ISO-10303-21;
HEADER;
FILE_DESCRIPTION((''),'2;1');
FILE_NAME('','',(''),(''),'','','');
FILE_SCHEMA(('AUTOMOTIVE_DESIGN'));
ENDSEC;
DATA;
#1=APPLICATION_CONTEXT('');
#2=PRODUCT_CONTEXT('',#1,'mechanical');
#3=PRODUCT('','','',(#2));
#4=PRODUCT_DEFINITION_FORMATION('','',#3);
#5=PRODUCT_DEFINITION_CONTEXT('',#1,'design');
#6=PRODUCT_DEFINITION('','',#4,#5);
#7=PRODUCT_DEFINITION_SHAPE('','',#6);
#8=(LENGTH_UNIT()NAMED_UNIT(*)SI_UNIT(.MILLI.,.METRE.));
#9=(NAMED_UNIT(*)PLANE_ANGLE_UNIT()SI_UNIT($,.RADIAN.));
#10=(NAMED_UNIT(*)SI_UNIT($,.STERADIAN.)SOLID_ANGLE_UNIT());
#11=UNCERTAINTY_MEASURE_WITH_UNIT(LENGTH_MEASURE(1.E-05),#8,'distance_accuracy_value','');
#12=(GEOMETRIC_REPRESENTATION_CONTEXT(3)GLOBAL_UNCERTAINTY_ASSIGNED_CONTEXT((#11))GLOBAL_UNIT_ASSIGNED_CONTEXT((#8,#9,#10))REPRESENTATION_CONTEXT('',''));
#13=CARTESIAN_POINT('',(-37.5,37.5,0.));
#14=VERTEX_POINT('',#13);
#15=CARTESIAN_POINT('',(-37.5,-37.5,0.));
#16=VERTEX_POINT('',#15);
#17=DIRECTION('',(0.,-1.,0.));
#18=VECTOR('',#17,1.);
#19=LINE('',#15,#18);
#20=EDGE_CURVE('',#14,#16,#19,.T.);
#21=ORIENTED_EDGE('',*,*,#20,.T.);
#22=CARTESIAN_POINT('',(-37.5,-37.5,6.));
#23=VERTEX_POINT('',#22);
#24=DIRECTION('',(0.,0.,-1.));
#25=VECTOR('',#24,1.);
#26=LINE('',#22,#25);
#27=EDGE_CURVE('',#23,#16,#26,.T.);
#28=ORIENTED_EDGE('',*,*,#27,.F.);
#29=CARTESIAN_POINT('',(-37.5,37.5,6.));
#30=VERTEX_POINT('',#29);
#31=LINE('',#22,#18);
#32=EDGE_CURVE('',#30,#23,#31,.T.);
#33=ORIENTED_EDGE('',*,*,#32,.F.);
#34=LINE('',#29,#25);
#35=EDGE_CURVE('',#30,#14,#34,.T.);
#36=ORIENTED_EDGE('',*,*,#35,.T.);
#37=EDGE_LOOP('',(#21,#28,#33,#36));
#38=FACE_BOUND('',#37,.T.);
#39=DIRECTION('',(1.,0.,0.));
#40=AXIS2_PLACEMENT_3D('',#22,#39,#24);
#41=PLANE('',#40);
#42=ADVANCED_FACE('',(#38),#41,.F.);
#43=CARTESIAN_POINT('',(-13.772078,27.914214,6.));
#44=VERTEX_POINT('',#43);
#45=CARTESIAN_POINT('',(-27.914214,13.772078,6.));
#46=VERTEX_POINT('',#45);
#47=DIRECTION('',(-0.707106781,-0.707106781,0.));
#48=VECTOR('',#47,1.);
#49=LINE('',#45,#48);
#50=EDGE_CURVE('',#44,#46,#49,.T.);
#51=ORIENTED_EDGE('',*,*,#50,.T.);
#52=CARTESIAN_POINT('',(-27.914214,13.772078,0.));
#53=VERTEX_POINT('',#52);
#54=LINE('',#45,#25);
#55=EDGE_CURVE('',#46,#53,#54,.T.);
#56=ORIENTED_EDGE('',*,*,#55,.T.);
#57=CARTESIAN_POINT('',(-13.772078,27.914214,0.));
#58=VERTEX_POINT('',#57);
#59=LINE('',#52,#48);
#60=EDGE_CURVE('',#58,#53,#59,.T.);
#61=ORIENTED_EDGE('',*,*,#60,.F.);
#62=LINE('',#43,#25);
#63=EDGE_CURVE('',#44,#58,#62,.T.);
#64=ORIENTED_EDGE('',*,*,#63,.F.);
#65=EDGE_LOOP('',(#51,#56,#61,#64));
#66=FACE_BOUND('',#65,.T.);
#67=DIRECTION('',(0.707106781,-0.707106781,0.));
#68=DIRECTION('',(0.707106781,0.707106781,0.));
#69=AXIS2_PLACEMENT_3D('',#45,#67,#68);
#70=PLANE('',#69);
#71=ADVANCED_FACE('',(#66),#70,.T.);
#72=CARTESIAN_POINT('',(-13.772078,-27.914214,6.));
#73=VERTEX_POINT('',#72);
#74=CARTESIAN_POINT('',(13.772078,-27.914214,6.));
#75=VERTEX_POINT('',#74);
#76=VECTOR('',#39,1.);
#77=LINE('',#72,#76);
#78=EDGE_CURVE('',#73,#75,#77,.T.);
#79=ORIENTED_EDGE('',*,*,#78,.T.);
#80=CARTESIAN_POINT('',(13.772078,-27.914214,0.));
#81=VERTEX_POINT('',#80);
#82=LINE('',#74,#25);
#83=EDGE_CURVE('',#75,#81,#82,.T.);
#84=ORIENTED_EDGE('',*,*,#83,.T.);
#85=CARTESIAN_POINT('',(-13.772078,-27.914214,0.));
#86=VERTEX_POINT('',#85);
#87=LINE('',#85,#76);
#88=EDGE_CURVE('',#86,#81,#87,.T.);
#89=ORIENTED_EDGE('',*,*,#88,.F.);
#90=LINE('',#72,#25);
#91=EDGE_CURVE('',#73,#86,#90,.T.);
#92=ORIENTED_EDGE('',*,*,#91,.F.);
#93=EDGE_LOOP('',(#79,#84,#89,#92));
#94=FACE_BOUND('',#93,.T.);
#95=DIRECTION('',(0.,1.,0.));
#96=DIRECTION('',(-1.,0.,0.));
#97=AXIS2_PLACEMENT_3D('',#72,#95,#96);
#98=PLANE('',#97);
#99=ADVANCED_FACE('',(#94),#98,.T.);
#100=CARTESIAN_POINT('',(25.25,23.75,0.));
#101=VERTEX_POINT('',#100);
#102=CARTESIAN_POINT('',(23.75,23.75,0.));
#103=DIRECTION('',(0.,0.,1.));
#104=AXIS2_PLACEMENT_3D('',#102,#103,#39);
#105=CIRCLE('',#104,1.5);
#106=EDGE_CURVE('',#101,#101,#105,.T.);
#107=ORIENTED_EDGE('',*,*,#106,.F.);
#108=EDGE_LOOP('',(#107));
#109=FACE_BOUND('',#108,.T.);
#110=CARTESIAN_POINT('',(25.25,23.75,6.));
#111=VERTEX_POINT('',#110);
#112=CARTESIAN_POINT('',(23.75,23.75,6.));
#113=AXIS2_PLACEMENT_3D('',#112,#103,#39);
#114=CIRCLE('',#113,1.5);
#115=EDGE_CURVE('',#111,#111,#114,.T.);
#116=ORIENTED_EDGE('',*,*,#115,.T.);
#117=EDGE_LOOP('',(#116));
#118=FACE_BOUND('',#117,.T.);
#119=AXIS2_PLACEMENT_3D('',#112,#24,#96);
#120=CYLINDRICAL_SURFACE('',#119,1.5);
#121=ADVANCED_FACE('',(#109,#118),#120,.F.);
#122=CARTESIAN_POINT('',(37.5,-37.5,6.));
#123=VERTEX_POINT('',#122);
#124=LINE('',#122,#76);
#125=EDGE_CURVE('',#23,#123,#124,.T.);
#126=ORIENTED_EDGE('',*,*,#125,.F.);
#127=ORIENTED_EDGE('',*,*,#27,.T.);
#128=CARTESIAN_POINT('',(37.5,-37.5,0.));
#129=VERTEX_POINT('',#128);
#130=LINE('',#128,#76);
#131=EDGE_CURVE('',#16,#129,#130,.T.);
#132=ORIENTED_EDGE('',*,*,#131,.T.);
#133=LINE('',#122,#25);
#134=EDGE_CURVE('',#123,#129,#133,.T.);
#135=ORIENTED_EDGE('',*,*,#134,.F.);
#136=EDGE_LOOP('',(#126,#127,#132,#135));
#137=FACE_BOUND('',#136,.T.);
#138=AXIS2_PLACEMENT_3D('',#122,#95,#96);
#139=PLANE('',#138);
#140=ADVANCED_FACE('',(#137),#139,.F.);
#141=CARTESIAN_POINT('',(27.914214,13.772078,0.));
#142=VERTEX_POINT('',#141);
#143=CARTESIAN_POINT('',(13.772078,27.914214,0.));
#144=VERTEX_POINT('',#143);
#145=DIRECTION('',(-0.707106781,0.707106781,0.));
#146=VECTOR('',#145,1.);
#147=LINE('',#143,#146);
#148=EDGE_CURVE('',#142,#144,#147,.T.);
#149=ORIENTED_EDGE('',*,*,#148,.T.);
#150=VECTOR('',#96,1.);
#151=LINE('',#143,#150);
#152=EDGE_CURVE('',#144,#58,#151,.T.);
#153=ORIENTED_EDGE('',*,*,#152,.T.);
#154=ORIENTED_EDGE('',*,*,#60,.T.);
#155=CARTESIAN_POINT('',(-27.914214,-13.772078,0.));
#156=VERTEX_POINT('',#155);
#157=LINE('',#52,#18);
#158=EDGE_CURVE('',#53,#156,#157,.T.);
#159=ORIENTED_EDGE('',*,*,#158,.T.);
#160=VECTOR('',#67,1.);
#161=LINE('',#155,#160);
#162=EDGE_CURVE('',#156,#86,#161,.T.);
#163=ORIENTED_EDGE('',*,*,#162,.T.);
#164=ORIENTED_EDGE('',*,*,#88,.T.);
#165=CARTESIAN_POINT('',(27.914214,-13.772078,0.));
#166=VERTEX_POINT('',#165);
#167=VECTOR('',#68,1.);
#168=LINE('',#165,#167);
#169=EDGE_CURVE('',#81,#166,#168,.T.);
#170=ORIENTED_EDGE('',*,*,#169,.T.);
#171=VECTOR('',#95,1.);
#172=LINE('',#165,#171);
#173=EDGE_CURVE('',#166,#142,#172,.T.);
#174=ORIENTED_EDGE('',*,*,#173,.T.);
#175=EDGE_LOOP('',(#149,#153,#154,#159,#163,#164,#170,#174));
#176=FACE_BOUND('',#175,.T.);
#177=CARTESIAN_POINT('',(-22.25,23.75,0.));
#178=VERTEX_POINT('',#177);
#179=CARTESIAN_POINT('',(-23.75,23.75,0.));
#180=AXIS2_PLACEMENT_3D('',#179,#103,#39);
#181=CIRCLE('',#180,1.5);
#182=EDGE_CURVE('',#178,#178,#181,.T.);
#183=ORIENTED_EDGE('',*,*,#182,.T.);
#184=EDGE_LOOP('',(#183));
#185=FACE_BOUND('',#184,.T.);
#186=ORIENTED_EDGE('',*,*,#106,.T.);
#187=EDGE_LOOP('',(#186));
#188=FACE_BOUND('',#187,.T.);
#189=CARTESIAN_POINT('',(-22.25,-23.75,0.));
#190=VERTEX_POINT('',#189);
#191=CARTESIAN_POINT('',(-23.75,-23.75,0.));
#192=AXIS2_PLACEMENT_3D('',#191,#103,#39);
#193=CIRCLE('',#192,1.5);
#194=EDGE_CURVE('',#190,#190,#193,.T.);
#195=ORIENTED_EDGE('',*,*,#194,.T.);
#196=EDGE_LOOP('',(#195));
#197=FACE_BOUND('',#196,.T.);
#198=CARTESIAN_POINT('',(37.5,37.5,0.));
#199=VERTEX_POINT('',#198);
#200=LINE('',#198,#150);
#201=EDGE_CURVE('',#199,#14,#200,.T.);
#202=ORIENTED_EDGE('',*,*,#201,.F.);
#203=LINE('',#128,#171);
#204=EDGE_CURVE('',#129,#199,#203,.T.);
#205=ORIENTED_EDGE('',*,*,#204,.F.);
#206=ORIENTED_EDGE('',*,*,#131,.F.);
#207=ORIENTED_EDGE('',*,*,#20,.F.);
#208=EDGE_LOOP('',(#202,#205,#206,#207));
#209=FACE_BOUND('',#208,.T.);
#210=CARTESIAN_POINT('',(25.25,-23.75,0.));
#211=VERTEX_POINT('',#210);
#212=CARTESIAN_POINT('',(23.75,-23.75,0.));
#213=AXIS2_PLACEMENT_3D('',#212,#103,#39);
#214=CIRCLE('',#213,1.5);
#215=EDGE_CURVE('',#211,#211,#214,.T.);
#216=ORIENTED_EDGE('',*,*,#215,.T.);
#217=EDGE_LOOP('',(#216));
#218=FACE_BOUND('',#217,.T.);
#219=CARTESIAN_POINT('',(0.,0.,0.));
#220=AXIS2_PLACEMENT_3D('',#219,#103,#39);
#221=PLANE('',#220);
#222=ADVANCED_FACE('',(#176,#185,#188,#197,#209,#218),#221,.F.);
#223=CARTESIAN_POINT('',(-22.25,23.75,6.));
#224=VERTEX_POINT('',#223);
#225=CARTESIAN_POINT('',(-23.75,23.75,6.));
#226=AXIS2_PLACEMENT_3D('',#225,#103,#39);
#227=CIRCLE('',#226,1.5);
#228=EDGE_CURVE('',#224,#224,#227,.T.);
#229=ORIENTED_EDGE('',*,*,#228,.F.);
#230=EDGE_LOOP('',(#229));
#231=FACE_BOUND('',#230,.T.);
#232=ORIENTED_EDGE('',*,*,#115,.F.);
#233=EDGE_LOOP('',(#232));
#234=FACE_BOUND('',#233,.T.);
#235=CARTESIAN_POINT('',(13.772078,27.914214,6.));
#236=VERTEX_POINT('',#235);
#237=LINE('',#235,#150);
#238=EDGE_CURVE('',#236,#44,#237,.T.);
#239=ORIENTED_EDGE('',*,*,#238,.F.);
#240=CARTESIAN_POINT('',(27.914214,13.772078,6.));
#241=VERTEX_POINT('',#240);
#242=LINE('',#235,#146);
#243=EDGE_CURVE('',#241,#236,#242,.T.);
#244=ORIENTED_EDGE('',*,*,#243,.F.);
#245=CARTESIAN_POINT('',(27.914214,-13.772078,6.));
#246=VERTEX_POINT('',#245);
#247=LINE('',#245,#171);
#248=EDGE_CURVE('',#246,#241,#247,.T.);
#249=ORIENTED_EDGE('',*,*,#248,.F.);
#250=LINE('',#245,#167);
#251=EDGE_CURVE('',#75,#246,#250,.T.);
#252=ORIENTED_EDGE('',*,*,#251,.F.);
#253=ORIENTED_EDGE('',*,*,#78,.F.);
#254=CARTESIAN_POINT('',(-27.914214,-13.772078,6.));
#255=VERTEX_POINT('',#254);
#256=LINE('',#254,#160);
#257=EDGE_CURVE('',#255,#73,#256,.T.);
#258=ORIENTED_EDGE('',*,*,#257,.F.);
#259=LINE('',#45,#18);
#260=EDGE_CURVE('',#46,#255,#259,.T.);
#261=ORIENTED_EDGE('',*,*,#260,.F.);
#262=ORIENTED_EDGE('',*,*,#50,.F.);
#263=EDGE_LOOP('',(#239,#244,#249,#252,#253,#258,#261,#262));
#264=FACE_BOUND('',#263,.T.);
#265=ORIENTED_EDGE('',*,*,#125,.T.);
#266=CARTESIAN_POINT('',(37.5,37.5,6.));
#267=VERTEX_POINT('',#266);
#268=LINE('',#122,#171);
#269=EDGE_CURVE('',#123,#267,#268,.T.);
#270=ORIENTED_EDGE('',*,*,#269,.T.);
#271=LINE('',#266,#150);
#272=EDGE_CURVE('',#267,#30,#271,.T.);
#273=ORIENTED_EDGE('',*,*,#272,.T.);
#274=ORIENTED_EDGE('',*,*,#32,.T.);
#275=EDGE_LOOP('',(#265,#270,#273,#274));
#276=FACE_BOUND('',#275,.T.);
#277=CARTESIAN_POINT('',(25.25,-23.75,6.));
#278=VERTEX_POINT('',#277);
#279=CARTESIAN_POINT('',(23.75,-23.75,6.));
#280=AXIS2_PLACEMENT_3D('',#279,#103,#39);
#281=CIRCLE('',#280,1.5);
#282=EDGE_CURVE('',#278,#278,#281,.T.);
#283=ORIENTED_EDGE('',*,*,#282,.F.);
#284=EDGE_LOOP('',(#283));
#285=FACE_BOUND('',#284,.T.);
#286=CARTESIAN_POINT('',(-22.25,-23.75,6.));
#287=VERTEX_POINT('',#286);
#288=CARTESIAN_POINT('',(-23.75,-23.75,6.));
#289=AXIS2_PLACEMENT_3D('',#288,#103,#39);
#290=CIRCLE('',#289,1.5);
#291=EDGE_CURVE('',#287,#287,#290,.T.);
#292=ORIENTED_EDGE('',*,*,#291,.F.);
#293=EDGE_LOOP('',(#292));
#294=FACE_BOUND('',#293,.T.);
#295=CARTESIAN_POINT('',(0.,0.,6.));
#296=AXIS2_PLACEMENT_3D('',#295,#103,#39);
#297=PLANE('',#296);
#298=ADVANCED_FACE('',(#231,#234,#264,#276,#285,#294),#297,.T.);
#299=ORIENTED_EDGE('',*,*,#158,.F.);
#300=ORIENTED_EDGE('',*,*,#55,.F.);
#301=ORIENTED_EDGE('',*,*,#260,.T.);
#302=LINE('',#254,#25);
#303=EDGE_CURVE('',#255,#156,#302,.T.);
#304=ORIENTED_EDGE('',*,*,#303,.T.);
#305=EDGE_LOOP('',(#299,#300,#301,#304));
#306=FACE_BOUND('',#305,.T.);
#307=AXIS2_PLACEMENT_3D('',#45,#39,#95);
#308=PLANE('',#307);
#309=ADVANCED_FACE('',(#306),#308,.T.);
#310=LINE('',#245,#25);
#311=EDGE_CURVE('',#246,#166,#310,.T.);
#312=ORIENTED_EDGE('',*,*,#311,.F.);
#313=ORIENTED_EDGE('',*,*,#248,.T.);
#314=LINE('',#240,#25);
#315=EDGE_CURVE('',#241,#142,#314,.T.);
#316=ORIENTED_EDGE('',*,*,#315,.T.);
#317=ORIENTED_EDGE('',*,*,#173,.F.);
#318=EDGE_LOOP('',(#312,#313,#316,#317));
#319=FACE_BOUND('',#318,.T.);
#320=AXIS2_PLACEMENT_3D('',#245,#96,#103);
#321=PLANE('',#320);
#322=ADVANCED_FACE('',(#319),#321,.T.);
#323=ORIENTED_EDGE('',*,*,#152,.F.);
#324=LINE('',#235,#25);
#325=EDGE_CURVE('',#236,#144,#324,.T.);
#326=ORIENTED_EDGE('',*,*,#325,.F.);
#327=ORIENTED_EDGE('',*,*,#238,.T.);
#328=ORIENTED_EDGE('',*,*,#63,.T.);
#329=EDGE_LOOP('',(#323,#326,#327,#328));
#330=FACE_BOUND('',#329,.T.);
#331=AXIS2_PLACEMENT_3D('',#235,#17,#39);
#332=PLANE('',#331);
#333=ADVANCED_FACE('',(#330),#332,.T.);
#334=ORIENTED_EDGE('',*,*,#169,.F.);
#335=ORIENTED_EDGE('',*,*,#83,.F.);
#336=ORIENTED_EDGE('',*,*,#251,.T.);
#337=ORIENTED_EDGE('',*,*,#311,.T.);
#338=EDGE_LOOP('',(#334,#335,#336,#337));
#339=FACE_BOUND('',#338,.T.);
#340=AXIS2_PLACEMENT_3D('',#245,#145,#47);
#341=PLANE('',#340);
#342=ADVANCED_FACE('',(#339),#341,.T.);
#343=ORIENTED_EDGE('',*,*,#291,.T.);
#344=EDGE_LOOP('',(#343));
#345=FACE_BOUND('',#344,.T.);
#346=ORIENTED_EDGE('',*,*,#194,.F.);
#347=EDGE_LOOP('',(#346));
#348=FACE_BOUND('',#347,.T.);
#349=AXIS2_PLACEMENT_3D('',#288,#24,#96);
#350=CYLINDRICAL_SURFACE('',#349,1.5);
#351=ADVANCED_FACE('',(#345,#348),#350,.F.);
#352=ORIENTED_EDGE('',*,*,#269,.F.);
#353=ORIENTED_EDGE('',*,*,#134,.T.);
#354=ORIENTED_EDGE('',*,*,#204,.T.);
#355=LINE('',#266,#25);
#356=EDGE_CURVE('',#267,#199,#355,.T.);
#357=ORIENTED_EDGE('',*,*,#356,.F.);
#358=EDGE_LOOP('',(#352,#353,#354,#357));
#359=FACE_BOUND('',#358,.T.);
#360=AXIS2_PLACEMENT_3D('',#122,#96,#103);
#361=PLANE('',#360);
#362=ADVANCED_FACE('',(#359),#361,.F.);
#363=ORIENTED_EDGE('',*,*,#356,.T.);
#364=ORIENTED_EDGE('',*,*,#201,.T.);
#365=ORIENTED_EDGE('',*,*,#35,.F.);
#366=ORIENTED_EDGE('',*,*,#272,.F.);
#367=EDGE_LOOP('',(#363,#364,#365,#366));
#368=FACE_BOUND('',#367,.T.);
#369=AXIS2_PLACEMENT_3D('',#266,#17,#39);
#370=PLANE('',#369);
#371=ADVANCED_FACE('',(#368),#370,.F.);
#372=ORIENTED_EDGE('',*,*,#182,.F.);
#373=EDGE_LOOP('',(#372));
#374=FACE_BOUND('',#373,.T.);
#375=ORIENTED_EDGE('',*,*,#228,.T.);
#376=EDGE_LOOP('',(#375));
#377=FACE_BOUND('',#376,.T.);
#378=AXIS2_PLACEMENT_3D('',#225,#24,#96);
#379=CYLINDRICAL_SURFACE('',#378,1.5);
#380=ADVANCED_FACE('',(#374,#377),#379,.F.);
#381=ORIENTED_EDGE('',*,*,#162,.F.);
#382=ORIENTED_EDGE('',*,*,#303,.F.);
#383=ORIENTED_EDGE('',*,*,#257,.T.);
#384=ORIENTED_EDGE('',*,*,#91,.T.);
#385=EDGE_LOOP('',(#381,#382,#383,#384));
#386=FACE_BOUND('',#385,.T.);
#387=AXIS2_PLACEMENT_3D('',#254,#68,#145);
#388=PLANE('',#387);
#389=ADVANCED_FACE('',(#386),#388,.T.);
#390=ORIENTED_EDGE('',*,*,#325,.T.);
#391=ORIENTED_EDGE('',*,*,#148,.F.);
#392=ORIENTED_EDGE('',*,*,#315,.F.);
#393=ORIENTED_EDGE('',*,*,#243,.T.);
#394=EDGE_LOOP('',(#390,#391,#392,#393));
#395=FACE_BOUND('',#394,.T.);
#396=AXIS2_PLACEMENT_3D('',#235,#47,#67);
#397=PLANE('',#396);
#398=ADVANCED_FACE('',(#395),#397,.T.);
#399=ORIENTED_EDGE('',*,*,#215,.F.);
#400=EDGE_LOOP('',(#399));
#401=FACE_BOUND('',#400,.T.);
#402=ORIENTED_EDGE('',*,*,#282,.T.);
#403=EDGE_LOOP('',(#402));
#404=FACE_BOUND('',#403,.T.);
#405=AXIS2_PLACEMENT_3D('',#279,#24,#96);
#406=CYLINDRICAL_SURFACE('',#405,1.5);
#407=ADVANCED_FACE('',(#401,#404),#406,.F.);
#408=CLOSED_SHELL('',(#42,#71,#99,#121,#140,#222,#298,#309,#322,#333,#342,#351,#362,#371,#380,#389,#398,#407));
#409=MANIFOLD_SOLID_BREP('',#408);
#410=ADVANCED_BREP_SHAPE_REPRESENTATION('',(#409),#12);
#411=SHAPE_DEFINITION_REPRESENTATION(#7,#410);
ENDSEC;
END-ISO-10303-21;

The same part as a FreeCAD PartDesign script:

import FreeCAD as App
import Part
import Sketcher

V = App.Vector

doc = App.newDocument("Part")
body = doc.addObject("PartDesign::Body", "Body")

sketch1 = doc.addObject("Sketcher::SketchObject", "Sketch")
body.addObject(sketch1)
sketch1.AttachmentSupport = (doc.XY_Plane, [""])
sketch1.MapMode = "FlatFace"
sketch1.addGeometry(Part.LineSegment(V(-37.5, 37.5, 0), V(-37.5, -37.5, 0)), False)
sketch1.addGeometry(Part.LineSegment(V(-37.5, -37.5, 0), V(37.5, -37.5, 0)), False)
sketch1.addGeometry(Part.LineSegment(V(37.5, -37.5, 0), V(37.5, 37.5, 0)), False)
sketch1.addGeometry(Part.LineSegment(V(37.5, 37.5, 0), V(-37.5, 37.5, 0)), False)
sketch1.addGeometry(Part.Circle(V(-23.75, -23.75, 0), V(0, 0, 1), 1.5), False)
sketch1.addGeometry(Part.Circle(V(23.75, -23.75, 0), V(0, 0, 1), 1.5), False)
sketch1.addGeometry(Part.Circle(V(-23.75, 23.75, 0), V(0, 0, 1), 1.5), False)
sketch1.addGeometry(Part.LineSegment(V(-27.914214, -13.772078, 0), V(-27.914214, 13.772078, 0)), False)
sketch1.addGeometry(Part.LineSegment(V(-27.914214, 13.772078, 0), V(-13.772078, 27.914214, 0)), False)
sketch1.addGeometry(Part.LineSegment(V(-13.772078, 27.914214, 0), V(13.772078, 27.914214, 0)), False)
sketch1.addGeometry(Part.LineSegment(V(13.772078, 27.914214, 0), V(27.914214, 13.772078, 0)), False)
sketch1.addGeometry(Part.LineSegment(V(27.914214, 13.772078, 0), V(27.914214, -13.772078, 0)), False)
sketch1.addGeometry(Part.LineSegment(V(27.914214, -13.772078, 0), V(13.772078, -27.914214, 0)), False)
sketch1.addGeometry(Part.LineSegment(V(13.772078, -27.914214, 0), V(-13.772078, -27.914214, 0)), False)
sketch1.addGeometry(Part.LineSegment(V(-13.772078, -27.914214, 0), V(-27.914214, -13.772078, 0)), False)
sketch1.addGeometry(Part.Circle(V(23.75, 23.75, 0), V(0, 0, 1), 1.5), False)
sketch1.addConstraint(Sketcher.Constraint("Coincident", 0, 2, 1, 1))
sketch1.addConstraint(Sketcher.Constraint("Coincident", 1, 2, 2, 1))
sketch1.addConstraint(Sketcher.Constraint("Coincident", 2, 2, 3, 1))
sketch1.addConstraint(Sketcher.Constraint("Coincident", 3, 2, 0, 1))
sketch1.addConstraint(Sketcher.Constraint("Coincident", 7, 2, 8, 1))
sketch1.addConstraint(Sketcher.Constraint("Coincident", 8, 2, 9, 1))
sketch1.addConstraint(Sketcher.Constraint("Coincident", 9, 2, 10, 1))
sketch1.addConstraint(Sketcher.Constraint("Coincident", 10, 2, 11, 1))
sketch1.addConstraint(Sketcher.Constraint("Coincident", 11, 2, 12, 1))
sketch1.addConstraint(Sketcher.Constraint("Coincident", 12, 2, 13, 1))
sketch1.addConstraint(Sketcher.Constraint("Coincident", 13, 2, 14, 1))
sketch1.addConstraint(Sketcher.Constraint("Coincident", 14, 2, 7, 1))
sketch1.addConstraint(Sketcher.Constraint("Vertical", 0))
sketch1.addConstraint(Sketcher.Constraint("Horizontal", 1))
sketch1.addConstraint(Sketcher.Constraint("Vertical", 2))
sketch1.addConstraint(Sketcher.Constraint("Horizontal", 3))
sketch1.addConstraint(Sketcher.Constraint("Vertical", 7))
sketch1.addConstraint(Sketcher.Constraint("Horizontal", 9))
sketch1.addConstraint(Sketcher.Constraint("Vertical", 11))
sketch1.addConstraint(Sketcher.Constraint("Horizontal", 13))
sketch1.addConstraint(Sketcher.Constraint("Equal", 4, 5))
sketch1.addConstraint(Sketcher.Constraint("Equal", 5, 6))
sketch1.addConstraint(Sketcher.Constraint("Equal", 6, 15))
sketch1.addConstraint(Sketcher.Constraint("Symmetric", 5, 3, 6, 3, -1, 1))
sketch1.addConstraint(Sketcher.Constraint("Symmetric", 4, 3, 15, 3, -1, 1))
sketch1.addConstraint(Sketcher.Constraint("Symmetric", 0, 2, 2, 2, -1, 1))
sketch1.addConstraint(Sketcher.Constraint("Symmetric", 7, 2, 11, 2, -1, 1))
sketch1.addConstraint(Sketcher.Constraint("Symmetric", 8, 2, 12, 2, -1, 1))
sketch1.addConstraint(Sketcher.Constraint("Symmetric", 4, 3, 5, 3, -2))
sketch1.addConstraint(Sketcher.Constraint("Perpendicular", 8, 10))
sketch1.addConstraint(Sketcher.Constraint("Perpendicular", 12, 14))
sketch1.addConstraint(Sketcher.Constraint("Horizontal", 7, 2, 10, 2))
sketch1.addConstraint(Sketcher.Constraint("Horizontal", 11, 2, 14, 2))
sketch1.addConstraint(Sketcher.Constraint("Vertical", 9, 2, 12, 2))
sketch1.addConstraint(Sketcher.Constraint("Equal", 3, 0))
sketch1.addConstraint(Sketcher.Constraint("Equal", 13, 7))
sketch1.addConstraint(Sketcher.Constraint("Diameter", 4, 3.0))
sketch1.addConstraint(Sketcher.Constraint("DistanceX", 1, 1, 1, 2, 75.0))
sketch1.addConstraint(Sketcher.Constraint("Distance", 8, 20.0))
sketch1.addConstraint(Sketcher.Constraint("DistanceX", 4, 3, 5, 3, 47.5))
sketch1.addConstraint(Sketcher.Constraint("DistanceY", 4, 3, 6, 3, 47.5))
sketch1.addConstraint(Sketcher.Constraint("DistanceX", 9, 1, 9, 2, 27.544156))
pad1 = doc.addObject("PartDesign::Pad", "Pad")
body.addObject(pad1)
pad1.Profile = sketch1
pad1.Length = 6

doc.recompute()
